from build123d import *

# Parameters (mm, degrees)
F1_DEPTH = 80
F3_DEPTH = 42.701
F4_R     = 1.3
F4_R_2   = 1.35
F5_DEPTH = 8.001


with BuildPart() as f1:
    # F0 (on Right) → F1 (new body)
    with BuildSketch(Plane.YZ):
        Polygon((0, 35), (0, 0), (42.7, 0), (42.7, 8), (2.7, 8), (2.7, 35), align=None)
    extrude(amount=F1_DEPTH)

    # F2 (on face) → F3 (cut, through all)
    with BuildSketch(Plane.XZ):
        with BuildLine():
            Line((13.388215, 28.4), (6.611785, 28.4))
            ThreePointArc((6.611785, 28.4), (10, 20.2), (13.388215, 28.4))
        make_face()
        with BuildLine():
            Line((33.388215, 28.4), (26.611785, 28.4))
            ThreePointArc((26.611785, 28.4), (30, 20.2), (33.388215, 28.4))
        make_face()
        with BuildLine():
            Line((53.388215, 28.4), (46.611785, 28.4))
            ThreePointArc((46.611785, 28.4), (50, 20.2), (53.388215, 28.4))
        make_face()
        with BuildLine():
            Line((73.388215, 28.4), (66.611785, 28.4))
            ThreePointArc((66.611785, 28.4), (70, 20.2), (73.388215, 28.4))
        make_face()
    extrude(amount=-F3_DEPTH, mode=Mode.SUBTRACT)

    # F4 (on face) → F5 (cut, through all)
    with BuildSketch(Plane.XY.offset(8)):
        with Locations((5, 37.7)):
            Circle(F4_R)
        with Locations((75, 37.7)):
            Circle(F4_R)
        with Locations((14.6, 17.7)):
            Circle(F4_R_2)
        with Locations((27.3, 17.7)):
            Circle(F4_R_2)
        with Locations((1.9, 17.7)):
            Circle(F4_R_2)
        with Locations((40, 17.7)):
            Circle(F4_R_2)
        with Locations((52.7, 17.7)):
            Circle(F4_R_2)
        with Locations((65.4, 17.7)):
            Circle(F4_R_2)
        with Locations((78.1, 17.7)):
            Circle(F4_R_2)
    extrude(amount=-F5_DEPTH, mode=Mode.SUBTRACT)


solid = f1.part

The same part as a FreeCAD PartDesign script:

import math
import FreeCAD as App
import Part
import Sketcher
from FreeCAD import Vector


def add_polygon(sketch, points):
    """Adds a closed chain of lines whose ends are joined by coincident constraints."""
    first, n = sketch.GeometryCount, len(points)
    for a, b in zip(points, points[1:] + points[:1]):
        sketch.addGeometry(Part.LineSegment(App.Vector(*a, 0), App.Vector(*b, 0)), False)
    for i in range(n):
        sketch.addConstraint(Sketcher.Constraint("Coincident", first + i, 2, first + (i + 1) % n, 1))

doc = App.newDocument("Part")
body = doc.addObject("PartDesign::Body", "Body")

# Sketch on YZ plane
sketch1 = doc.addObject("Sketcher::SketchObject", "Sketch")
body.addObject(sketch1)
sketch1.AttachmentSupport = (doc.YZ_Plane, [""])
sketch1.MapMode = "FlatFace"
add_polygon(sketch1, [(0, 35), (0, 0), (42.7, 0), (42.7, 8), (2.7, 8), (2.7, 35)])  # lines 0-5
sketch1.addConstraint(Sketcher.Constraint("Vertical", 0))
sketch1.addConstraint(Sketcher.Constraint("Horizontal", 1))
sketch1.addConstraint(Sketcher.Constraint("Vertical", 2))
sketch1.addConstraint(Sketcher.Constraint("Horizontal", 3))
sketch1.addConstraint(Sketcher.Constraint("Vertical", 4))
sketch1.addConstraint(Sketcher.Constraint("Horizontal", 5))
sketch1.addConstraint(Sketcher.Constraint("Coincident", 0, 2, -1, 1))
sketch1.addConstraint(Sketcher.Constraint("DistanceX", 3, 2, 3, 1, 40.0))
sketch1.addConstraint(Sketcher.Constraint("DistanceY", 0, 2, 0, 1, 35.0))
sketch1.addConstraint(Sketcher.Constraint("DistanceY", 2, 1, 2, 2, 8.0))
sketch1.addConstraint(Sketcher.Constraint("DistanceX", 1, 1, 1, 2, 42.7))
pad1 = doc.addObject("PartDesign::Pad", "Pad")
body.addObject(pad1)
pad1.Profile = sketch1
pad1.Length = 80

# Sketch on XZ plane
sketch2 = doc.addObject("Sketcher::SketchObject", "Sketch001")
body.addObject(sketch2)
sketch2.AttachmentSupport = (doc.XZ_Plane, [""])
sketch2.MapMode = "FlatFace"
sketch2.addGeometry(Part.LineSegment(Vector(13.4, 28.4, 0), Vector(6.6, 28.4, 0)), False)
sketch2.addGeometry(Part.ArcOfCircle(Part.Circle(Vector(10, 25, 0), Vector(0, 0, 1), 4.8), math.radians(135), math.radians(405)), False)
sketch2.addGeometry(Part.LineSegment(Vector(33.4, 28.4, 0), Vector(26.6, 28.4, 0)), False)
sketch2.addGeometry(Part.ArcOfCircle(Part.Circle(Vector(30, 25, 0), Vector(0, 0, 1), 4.8), math.radians(135), math.radians(405)), False)
sketch2.addGeometry(Part.LineSegment(Vector(53.4, 28.4, 0), Vector(46.6, 28.4, 0)), False)
sketch2.addGeometry(Part.ArcOfCircle(Part.Circle(Vector(50, 25, 0), Vector(0, 0, 1), 4.8), math.radians(135), math.radians(405)), False)
sketch2.addGeometry(Part.LineSegment(Vector(73.4, 28.4, 0), Vector(66.6, 28.4, 0)), False)
sketch2.addGeometry(Part.ArcOfCircle(Part.Circle(Vector(70, 25, 0), Vector(0, 0, 1), 4.8), math.radians(135), math.radians(405)), False)
sketch2.addConstraint(Sketcher.Constraint("Coincident", 0, 1, 1, 2))
sketch2.addConstraint(Sketcher.Constraint("Coincident", 1, 1, 0, 2))
sketch2.addConstraint(Sketcher.Constraint("Coincident", 2, 1, 3, 2))
sketch2.addConstraint(Sketcher.Constraint("Coincident", 3, 1, 2, 2))
sketch2.addConstraint(Sketcher.Constraint("Coincident", 4, 1, 5, 2))
sketch2.addConstraint(Sketcher.Constraint("Coincident", 5, 1, 4, 2))
sketch2.addConstraint(Sketcher.Constraint("Coincident", 6, 1, 7, 2))
sketch2.addConstraint(Sketcher.Constraint("Coincident", 7, 1, 6, 2))
sketch2.addConstraint(Sketcher.Constraint("Horizontal", 0))
sketch2.addConstraint(Sketcher.Constraint("Horizontal", 2))
sketch2.addConstraint(Sketcher.Constraint("Horizontal", 4))
sketch2.addConstraint(Sketcher.Constraint("Horizontal", 6))
sketch2.addConstraint(Sketcher.Constraint("Equal", 1, 3))
sketch2.addConstraint(Sketcher.Constraint("Equal", 3, 5))
sketch2.addConstraint(Sketcher.Constraint("Equal", 5, 7))
sketch2.addConstraint(Sketcher.Constraint("Horizontal", 1, 3, 3, 3))
sketch2.addConstraint(Sketcher.Constraint("Horizontal", 3, 3, 5, 3))
sketch2.addConstraint(Sketcher.Constraint("Horizontal", 5, 3, 7, 3))
sketch2.addConstraint(Sketcher.Constraint("Horizontal", 1, 1, 2, 1))
sketch2.addConstraint(Sketcher.Constraint("Horizontal", 3, 1, 4, 1))
sketch2.addConstraint(Sketcher.Constraint("Horizontal", 5, 1, 6, 1))
sketch2.addConstraint(Sketcher.Constraint("Radius", 1, 4.8))
sketch2.addConstraint(Sketcher.Constraint("DistanceX", -1, 1, 1, 3, 10.0))
sketch2.addConstraint(Sketcher.Constraint("DistanceY", -1, 1, 1, 3, 25.0))
sketch2.addConstraint(Sketcher.Constraint("DistanceX", -1, 1, 3, 3, 30.0))
sketch2.addConstraint(Sketcher.Constraint("DistanceX", -1, 1, 5, 3, 50.0))
sketch2.addConstraint(Sketcher.Constraint("DistanceX", -1, 1, 7, 3, 70.0))
sketch2.addConstraint(Sketcher.Constraint("DistanceY", -1, 1, 0, 1, 28.4))
pocket1 = doc.addObject("PartDesign::Pocket", "Pocket")
body.addObject(pocket1)
pocket1.Profile = sketch2
pocket1.Type = "ThroughAll"

# Sketch on XY plane
sketch3 = doc.addObject("Sketcher::SketchObject", "Sketch002")
body.addObject(sketch3)
sketch3.AttachmentSupport = (doc.XY_Plane, [""])
sketch3.MapMode = "FlatFace"
sketch3.AttachmentOffset = App.Placement(Vector(0, 0, 8), App.Rotation())
sketch3.addGeometry(Part.Circle(Vector(5, 37.7, 0), Vector(0, 0, 1), 1.3), False)
sketch3.addGeometry(Part.Circle(Vector(75, 37.7, 0), Vector(0, 0, 1), 1.3), False)
sketch3.addGeometry(Part.Circle(Vector(14.6, 17.7, 0), Vector(0, 0, 1), 1.4), False)
sketch3.addGeometry(Part.Circle(Vector(27.3, 17.7, 0), Vector(0, 0, 1), 1.4), False)
sketch3.addGeometry(Part.Circle(Vector(1.9, 17.7, 0), Vector(0, 0, 1), 1.4), False)
sketch3.addGeometry(Part.Circle(Vector(40, 17.7, 0), Vector(0, 0, 1), 1.4), False)
sketch3.addGeometry(Part.Circle(Vector(52.7, 17.7, 0), Vector(0, 0, 1), 1.4), False)
sketch3.addGeometry(Part.Circle(Vector(65.4, 17.7, 0), Vector(0, 0, 1), 1.4), False)
sketch3.addGeometry(Part.Circle(Vector(78.1, 17.7, 0), Vector(0, 0, 1), 1.4), False)
sketch3.addConstraint(Sketcher.Constraint("Equal", 0, 1))
sketch3.addConstraint(Sketcher.Constraint("Equal", 2, 3))
sketch3.addConstraint(Sketcher.Constraint("Equal", 3, 4))
sketch3.addConstraint(Sketcher.Constraint("Equal", 4, 5))
sketch3.addConstraint(Sketcher.Constraint("Equal", 5, 6))
sketch3.addConstraint(Sketcher.Constraint("Equal", 6, 7))
sketch3.addConstraint(Sketcher.Constraint("Equal", 7, 8))
sketch3.addConstraint(Sketcher.Constraint("Horizontal", 0, 3, 1, 3))
sketch3.addConstraint(Sketcher.Constraint("Horizontal", 2, 3, 3, 3))
sketch3.addConstraint(Sketcher.Constraint("Horizontal", 3, 3, 4, 3))
sketch3.addConstraint(Sketcher.Constraint("Horizontal", 4, 3, 5, 3))
sketch3.addConstraint(Sketcher.Constraint("Horizontal", 5, 3, 6, 3))
sketch3.addConstraint(Sketcher.Constraint("Horizontal", 6, 3, 7, 3))
sketch3.addConstraint(Sketcher.Constraint("Horizontal", 7, 3, 8, 3))
sketch3.addConstraint(Sketcher.Constraint("Diameter", 0, 2.6))
sketch3.addConstraint(Sketcher.Constraint("Diameter", 2, 2.7))
sketch3.addConstraint(Sketcher.Constraint("DistanceX", -1, 1, 0, 3, 5.0))
sketch3.addConstraint(Sketcher.Constraint("DistanceX", -1, 1, 1, 3, 75.0))
sketch3.addConstraint(Sketcher.Constraint("DistanceX", -1, 1, 5, 3, 40.0))
sketch3.addConstraint(Sketcher.Constraint("DistanceY", 2, 3, 0, 3, 20.0))
sketch3.addConstraint(Sketcher.Constraint("DistanceY", -1, 1, 0, 3, 37.7))
sketch3.addConstraint(Sketcher.Constraint("DistanceX", -1, 1, 2, 3, 14.6))
sketch3.addConstraint(Sketcher.Constraint("DistanceX", -1, 1, 3, 3, 27.3))
sketch3.addConstraint(Sketcher.Constraint("DistanceX", -1, 1, 4, 3, 1.9))
sketch3.addConstraint(Sketcher.Constraint("DistanceX", -1, 1, 6, 3, 52.7))
sketch3.addConstraint(Sketcher.Constraint("DistanceX", -1, 1, 7, 3, 65.4))
sketch3.addConstraint(Sketcher.Constraint("DistanceX", -1, 1, 8, 3, 78.1))
pocket2 = doc.addObject("PartDesign::Pocket", "Pocket001")
body.addObject(pocket2)
pocket2.Profile = sketch3
pocket2.Type = "ThroughAll"

doc.recompute()
